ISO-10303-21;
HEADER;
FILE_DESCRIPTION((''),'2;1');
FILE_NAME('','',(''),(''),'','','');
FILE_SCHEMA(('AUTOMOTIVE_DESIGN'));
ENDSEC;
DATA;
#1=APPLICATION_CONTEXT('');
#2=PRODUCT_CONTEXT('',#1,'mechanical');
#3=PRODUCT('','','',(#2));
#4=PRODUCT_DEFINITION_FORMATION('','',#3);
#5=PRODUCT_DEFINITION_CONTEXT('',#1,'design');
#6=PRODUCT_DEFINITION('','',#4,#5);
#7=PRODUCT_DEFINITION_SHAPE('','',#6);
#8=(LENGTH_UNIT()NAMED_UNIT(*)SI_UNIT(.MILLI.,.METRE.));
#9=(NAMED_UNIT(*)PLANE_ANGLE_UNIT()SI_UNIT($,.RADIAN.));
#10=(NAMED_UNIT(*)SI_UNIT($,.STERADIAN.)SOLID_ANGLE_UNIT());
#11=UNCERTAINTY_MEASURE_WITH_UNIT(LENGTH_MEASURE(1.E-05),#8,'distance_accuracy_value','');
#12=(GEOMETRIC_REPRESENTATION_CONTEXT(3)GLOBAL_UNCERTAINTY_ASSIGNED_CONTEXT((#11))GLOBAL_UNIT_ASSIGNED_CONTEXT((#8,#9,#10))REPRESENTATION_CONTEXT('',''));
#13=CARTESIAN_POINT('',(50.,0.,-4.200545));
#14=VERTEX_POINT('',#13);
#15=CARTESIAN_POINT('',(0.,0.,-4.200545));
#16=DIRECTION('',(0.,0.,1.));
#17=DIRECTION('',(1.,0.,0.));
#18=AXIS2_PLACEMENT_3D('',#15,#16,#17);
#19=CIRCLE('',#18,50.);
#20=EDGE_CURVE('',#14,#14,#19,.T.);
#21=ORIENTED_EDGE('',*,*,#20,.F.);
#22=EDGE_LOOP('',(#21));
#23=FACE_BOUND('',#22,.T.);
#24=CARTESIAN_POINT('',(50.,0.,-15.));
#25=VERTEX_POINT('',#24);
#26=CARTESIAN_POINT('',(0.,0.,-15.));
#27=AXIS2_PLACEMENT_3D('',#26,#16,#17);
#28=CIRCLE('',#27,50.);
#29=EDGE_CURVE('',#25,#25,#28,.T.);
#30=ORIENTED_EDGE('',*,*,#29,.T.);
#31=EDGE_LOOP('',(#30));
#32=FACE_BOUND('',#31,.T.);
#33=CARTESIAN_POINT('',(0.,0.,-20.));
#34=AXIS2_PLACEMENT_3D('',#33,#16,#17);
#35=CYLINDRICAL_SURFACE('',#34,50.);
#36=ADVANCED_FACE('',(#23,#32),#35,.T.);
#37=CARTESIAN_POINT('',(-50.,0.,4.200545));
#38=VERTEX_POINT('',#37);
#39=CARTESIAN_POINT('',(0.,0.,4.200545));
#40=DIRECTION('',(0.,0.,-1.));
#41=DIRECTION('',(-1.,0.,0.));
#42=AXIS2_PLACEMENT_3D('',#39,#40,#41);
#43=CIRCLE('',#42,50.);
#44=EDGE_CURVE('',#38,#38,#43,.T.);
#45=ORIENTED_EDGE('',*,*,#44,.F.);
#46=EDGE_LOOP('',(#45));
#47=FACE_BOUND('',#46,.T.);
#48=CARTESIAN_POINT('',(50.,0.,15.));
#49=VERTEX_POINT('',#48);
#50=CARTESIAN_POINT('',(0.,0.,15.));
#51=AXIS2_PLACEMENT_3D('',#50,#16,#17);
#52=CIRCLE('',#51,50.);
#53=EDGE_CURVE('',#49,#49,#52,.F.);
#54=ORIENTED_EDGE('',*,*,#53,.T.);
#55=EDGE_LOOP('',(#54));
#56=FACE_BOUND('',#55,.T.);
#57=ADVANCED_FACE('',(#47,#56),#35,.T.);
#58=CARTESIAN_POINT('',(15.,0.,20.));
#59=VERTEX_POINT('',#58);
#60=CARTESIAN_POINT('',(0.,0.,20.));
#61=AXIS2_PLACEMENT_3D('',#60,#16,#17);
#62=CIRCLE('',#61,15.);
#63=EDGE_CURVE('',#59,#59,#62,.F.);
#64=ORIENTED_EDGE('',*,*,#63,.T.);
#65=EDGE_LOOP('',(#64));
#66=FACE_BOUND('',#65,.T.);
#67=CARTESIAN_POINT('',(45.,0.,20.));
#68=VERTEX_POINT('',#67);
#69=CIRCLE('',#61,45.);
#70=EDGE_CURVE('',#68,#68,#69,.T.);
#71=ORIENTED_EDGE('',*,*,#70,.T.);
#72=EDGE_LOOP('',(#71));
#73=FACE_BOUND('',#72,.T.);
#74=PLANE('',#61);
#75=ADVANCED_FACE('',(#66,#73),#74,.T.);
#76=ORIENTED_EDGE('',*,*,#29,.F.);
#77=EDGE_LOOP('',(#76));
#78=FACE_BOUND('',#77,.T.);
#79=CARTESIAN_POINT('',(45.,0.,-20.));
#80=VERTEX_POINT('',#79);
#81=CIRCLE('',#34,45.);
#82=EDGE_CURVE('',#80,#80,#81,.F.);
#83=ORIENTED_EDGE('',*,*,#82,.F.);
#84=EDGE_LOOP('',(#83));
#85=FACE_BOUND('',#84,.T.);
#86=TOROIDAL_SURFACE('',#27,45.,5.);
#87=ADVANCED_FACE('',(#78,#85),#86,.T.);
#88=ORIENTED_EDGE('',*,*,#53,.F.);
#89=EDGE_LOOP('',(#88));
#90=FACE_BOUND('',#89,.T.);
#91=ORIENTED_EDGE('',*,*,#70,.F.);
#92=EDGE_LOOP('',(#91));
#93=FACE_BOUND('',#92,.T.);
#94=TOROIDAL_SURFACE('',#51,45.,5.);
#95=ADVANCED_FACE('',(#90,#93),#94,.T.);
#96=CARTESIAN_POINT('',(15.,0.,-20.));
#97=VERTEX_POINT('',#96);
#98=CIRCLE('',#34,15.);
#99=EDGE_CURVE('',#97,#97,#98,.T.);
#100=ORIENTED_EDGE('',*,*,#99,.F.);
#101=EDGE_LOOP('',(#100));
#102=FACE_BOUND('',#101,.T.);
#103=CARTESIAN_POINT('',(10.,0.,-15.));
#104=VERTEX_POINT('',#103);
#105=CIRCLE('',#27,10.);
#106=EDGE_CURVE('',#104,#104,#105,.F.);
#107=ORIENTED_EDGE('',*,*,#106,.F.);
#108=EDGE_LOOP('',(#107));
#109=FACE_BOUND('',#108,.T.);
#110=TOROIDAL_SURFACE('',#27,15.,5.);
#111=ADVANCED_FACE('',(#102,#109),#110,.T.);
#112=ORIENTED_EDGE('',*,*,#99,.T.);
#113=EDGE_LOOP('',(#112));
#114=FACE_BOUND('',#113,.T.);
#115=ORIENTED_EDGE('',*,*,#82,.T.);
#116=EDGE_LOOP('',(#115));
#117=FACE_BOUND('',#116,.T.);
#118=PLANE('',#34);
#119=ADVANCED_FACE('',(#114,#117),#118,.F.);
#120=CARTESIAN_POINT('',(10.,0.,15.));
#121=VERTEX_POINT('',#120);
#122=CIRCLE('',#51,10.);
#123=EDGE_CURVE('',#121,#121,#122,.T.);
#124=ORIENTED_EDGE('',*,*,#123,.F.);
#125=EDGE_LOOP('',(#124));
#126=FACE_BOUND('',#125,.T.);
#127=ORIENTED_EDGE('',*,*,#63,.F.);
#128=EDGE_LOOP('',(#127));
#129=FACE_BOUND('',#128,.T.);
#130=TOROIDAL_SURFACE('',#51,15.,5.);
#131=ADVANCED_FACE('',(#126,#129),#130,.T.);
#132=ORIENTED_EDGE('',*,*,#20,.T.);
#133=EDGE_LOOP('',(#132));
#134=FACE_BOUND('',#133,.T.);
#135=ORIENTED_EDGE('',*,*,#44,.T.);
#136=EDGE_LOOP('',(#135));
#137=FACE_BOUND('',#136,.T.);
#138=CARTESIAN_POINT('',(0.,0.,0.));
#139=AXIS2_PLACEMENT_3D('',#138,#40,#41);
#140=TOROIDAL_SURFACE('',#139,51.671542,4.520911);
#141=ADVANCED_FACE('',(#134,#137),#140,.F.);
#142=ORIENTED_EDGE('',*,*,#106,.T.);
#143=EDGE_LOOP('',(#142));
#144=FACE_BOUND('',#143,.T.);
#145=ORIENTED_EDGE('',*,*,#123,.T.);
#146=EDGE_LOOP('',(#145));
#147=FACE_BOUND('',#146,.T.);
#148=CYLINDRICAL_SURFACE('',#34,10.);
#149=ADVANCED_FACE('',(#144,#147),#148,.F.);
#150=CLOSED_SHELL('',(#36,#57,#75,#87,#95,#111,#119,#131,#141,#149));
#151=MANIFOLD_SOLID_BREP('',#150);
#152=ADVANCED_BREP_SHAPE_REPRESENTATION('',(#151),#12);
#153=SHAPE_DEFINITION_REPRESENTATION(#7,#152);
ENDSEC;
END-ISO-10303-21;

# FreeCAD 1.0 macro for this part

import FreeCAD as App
import Part
import Sketcher


def edges_at(feature, points):
    """Names of the edges that pass closest to the given points."""
    edges = feature.Shape.Edges
    near = lambda p: min(range(len(edges)), key=lambda i: edges[i].distToShape(Part.Vertex(*p))[0])
    return sorted({f"Edge{near(p) + 1}" for p in points})

doc = App.newDocument("Part")
body = doc.addObject("PartDesign::Body", "Body")

sketch1 = doc.addObject("Sketcher::SketchObject", "Sketch")
body.addObject(sketch1)
sketch1.AttachmentSupport = (doc.XY_Plane, [""])
sketch1.MapMode = "FlatFace"
sketch1.addGeometry([
    Part.Circle(App.Vector(0, 0, 0), App.Vector(0, 0, 1), 50),
    Part.Circle(App.Vector(0, 0, 0), App.Vector(0, 0, 1), 10),
], False)
sketch1.addConstraint([
    Sketcher.Constraint("Coincident", 0, 3, -1, 1),
    Sketcher.Constraint("Coincident", 1, 3, -1, 1),
    Sketcher.Constraint("Diameter", 0, 100.0),
    Sketcher.Constraint("Diameter", 1, 20.0),
])
pad1 = doc.addObject("PartDesign::Pad", "Pad")
body.addObject(pad1)
pad1.Profile = sketch1
pad1.Type = "TwoLengths"
pad1.Length = 20
pad1.Length2 = 20
doc.recompute()

fillet = doc.addObject("PartDesign::Fillet", "Fillet")
body.addObject(fillet)
fillet.Base = (pad1, edges_at(pad1, [
    (-50, 0, -20),
    (-10, 0, -20),
    (-50, 0, 20),
    (-10, 0, 20),
]))
fillet.Radius = 5

sketch2 = doc.addObject("Sketcher::SketchObject", "Sketch001")
body.addObject(sketch2)
sketch2.AttachmentSupport = (doc.XZ_Plane, [""])
sketch2.MapMode = "FlatFace"
sketch2.addGeometry(Part.Circle(App.Vector(-51.671542, 0, 0), App.Vector(0, 0, 1), 4.520911), False)
sketch2.addConstraint([
    Sketcher.Constraint("PointOnObject", 0, 3, -1),
    Sketcher.Constraint("Diameter", 0, 9.041821),
    Sketcher.Constraint("DistanceX", 0, 3, -1, 1, 51.671542),
])
groove = doc.addObject("PartDesign::Groove", "Groove")
body.addObject(groove)
groove.Profile = sketch2
groove.ReferenceAxis = (sketch2, ["V_Axis"])
groove.Angle = 360

doc.recompute()
